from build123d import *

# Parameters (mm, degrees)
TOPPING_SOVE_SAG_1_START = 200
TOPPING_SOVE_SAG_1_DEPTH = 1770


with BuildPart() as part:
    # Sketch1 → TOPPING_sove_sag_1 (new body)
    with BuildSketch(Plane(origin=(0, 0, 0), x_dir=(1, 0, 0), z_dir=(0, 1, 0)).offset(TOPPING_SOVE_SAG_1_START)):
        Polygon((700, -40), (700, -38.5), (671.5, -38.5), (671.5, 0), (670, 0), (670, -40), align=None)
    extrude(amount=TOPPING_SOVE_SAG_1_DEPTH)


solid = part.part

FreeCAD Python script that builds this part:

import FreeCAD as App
import Part
import Sketcher

V = App.Vector
Q = App.Units.Quantity

doc = App.newDocument("Part")
body = doc.addObject("PartDesign::Body", "Body")

# Sketch on XZ plane
sketch1 = doc.addObject("Sketcher::SketchObject", "Sketch")
body.addObject(sketch1)
sketch1.AttachmentSupport = (doc.XZ_Plane, [""])
sketch1.MapMode = "FlatFace"
sketch1.AttachmentOffset = App.Placement(V(0, 0, -200), App.Rotation())
sketch1.addGeometry([
    Part.LineSegment(V(700, 40, 0), V(700, 38.5, 0)),  # 0
    Part.LineSegment(V(700, 38.5, 0), V(671.5, 38.5, 0)),  # 1
    Part.LineSegment(V(671.5, 38.5, 0), V(671.5, 0, 0)),  # 2
    Part.LineSegment(V(671.5, 0, 0), V(670, 0, 0)),  # 3
    Part.LineSegment(V(670, 0, 0), V(670, 40, 0)),  # 4
    Part.LineSegment(V(670, 40, 0), V(700, 40, 0)),  # 5
], False)
sketch1.addConstraint([
    Sketcher.Constraint("Coincident", 0, 2, 1, 1),
    Sketcher.Constraint("Coincident", 1, 2, 2, 1),
    Sketcher.Constraint("Coincident", 2, 2, 3, 1),
    Sketcher.Constraint("Coincident", 3, 2, 4, 1),
    Sketcher.Constraint("Coincident", 4, 2, 5, 1),
    Sketcher.Constraint("Coincident", 5, 2, 0, 1),
    Sketcher.Constraint("Vertical", 0),
    Sketcher.Constraint("Horizontal", 1),
    Sketcher.Constraint("Vertical", 2),
    Sketcher.Constraint("Horizontal", 3),
    Sketcher.Constraint("Vertical", 4),
    Sketcher.Constraint("Horizontal", 5),
    Sketcher.Constraint("PointOnObject", 2, 2, -1),
    Sketcher.Constraint("Equal", 3, 0),
    Sketcher.Constraint("DistanceX", 5, 1, 5, 2, Q("30 mm")),
    Sketcher.Constraint("DistanceY", 4, 1, 4, 2, Q("40 mm")),
    Sketcher.Constraint("DistanceX", 1, 2, 1, 1, Q("28.5 mm")),
    Sketcher.Constraint("DistanceX", -1, 1, 0, 2, Q("700 mm")),
])
pad1 = doc.addObject("PartDesign::Pad", "Pad")
body.addObject(pad1)
pad1.Profile = sketch1
pad1.Length = 1770
pad1.Reversed = True

doc.recompute()
